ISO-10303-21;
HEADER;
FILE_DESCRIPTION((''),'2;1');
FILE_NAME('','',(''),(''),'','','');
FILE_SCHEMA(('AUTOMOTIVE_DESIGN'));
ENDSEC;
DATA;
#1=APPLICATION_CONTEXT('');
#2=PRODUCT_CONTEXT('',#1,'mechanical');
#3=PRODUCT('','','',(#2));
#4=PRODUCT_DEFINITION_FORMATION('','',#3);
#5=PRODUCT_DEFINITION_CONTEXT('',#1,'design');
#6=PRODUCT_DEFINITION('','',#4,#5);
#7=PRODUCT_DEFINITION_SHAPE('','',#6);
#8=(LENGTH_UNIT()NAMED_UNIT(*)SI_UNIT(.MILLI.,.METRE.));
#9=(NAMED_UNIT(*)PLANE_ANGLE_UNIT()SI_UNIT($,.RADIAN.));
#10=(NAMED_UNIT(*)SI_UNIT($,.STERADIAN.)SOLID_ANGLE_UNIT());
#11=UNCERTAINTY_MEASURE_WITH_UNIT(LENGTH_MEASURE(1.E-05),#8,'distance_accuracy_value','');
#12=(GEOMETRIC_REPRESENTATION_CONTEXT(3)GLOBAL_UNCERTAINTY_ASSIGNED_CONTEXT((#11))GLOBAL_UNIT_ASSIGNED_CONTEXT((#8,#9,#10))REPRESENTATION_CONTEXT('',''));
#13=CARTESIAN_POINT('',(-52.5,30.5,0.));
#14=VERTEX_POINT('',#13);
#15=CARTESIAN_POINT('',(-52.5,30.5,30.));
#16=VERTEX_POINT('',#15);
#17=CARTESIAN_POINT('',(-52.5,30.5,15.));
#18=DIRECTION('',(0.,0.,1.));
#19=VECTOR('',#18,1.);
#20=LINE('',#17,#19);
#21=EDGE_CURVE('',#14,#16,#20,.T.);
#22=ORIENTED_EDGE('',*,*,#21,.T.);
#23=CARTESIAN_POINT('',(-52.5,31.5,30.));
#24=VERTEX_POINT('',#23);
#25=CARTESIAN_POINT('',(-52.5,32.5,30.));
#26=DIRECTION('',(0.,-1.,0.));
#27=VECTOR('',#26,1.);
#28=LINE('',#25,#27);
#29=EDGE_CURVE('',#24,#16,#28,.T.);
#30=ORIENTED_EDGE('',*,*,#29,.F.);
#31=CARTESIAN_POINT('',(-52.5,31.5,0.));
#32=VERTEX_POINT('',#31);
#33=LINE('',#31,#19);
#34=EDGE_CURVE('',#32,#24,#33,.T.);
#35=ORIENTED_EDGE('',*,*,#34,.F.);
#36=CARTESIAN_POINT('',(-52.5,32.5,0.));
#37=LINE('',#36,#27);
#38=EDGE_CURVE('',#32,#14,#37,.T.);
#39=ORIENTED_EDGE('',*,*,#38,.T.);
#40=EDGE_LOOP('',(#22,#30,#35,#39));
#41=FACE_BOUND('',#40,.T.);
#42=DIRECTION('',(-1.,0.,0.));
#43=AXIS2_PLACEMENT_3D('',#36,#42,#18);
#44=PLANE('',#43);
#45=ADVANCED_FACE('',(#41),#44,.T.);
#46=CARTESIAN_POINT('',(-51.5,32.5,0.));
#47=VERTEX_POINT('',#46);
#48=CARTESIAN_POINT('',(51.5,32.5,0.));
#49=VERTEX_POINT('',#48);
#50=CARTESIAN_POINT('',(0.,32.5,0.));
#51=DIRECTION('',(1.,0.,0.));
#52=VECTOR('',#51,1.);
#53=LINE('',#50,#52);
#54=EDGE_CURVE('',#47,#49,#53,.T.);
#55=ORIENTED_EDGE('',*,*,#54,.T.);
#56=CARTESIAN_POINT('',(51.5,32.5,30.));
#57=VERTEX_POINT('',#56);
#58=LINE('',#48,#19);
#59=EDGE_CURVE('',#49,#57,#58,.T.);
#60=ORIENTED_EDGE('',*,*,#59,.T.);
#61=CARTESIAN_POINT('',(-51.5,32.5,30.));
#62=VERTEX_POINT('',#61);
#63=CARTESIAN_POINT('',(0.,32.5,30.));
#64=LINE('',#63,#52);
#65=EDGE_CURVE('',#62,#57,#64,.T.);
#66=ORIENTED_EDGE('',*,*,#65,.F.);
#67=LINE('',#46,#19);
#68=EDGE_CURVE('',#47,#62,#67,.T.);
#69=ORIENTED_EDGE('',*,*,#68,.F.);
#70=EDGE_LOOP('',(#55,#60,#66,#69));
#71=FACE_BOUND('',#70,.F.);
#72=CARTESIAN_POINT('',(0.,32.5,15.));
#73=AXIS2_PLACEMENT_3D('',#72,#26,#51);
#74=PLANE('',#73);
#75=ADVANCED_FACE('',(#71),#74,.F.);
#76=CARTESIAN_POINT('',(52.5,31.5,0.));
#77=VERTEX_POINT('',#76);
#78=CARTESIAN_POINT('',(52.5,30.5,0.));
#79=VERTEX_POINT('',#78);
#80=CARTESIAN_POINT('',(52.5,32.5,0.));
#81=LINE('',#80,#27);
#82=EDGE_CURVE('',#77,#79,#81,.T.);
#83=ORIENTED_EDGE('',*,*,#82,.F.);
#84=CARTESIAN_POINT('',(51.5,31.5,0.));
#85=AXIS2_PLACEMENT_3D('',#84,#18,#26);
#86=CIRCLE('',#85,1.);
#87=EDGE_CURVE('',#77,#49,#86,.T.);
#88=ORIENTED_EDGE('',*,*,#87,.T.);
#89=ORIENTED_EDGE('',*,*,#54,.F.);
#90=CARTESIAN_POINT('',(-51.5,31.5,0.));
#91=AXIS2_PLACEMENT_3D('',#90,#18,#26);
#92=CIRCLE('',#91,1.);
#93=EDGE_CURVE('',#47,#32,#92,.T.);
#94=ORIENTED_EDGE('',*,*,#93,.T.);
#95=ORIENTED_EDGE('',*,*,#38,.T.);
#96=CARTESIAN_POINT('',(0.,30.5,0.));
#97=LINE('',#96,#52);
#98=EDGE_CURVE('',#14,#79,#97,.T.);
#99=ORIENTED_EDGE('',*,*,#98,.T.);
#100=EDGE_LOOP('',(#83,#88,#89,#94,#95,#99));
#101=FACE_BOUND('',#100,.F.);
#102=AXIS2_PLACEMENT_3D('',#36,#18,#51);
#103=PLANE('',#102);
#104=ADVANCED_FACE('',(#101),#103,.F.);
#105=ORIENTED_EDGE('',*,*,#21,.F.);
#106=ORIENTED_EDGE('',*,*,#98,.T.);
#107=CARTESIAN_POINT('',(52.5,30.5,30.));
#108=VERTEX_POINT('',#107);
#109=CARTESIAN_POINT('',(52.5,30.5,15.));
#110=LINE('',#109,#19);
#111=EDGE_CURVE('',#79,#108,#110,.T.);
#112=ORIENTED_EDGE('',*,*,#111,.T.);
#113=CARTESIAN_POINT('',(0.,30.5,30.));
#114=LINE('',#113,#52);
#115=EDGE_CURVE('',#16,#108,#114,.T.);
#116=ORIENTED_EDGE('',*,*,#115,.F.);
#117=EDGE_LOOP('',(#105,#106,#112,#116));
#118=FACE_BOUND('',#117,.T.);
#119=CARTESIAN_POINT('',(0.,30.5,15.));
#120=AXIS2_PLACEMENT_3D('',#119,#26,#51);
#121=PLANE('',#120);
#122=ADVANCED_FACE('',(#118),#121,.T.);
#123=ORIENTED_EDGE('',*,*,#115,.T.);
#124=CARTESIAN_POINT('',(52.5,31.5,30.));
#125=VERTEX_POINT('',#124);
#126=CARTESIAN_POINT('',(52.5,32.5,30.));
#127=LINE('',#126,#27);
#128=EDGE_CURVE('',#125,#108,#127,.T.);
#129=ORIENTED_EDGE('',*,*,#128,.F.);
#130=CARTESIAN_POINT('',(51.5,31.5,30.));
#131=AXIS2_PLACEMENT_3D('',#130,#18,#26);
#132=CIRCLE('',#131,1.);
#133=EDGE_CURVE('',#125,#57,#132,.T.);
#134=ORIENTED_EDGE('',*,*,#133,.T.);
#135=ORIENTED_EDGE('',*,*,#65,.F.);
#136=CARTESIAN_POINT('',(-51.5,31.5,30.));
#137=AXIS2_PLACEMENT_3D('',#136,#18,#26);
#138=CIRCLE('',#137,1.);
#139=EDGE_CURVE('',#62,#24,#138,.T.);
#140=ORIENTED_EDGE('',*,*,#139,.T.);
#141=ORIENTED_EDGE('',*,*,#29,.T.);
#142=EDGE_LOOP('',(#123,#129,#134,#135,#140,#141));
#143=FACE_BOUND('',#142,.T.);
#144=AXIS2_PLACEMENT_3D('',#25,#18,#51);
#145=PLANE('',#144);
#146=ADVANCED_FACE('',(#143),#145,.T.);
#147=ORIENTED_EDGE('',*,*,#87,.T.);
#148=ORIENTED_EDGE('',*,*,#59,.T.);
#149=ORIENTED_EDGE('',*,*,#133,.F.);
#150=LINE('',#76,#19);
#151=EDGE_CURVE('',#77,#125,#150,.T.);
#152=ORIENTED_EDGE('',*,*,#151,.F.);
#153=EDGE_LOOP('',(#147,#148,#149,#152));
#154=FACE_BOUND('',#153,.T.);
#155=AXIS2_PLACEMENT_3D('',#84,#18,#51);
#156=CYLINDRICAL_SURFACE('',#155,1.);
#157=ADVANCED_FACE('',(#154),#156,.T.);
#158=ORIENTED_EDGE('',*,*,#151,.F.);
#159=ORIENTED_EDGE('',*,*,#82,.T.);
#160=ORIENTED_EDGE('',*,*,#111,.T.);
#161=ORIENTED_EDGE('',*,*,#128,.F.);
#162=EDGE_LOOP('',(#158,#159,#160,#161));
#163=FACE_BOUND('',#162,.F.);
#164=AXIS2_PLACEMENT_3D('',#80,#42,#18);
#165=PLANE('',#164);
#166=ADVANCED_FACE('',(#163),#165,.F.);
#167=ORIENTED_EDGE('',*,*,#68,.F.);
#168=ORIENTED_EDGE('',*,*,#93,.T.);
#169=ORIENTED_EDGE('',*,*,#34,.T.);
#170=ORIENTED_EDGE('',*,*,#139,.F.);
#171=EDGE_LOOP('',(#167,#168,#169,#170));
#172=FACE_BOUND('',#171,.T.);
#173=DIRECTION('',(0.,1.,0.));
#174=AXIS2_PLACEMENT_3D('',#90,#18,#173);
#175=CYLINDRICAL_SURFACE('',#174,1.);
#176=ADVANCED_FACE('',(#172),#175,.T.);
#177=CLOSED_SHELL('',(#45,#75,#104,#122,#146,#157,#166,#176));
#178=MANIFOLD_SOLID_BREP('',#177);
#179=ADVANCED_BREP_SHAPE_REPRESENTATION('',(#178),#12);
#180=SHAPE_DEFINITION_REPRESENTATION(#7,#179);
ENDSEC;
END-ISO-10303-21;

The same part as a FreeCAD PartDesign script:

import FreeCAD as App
import Part
import Sketcher

V = App.Vector


def edges_at(feature, points):
    """Names of the edges that pass closest to the given points."""
    edges = feature.Shape.Edges
    near = lambda p: min(range(len(edges)), key=lambda i: edges[i].distToShape(Part.Vertex(*p))[0])
    return sorted({f"Edge{near(p) + 1}" for p in points})

doc = App.newDocument("Part")
body = doc.addObject("PartDesign::Body", "Body")

sketch1 = body.newObject("Sketcher::SketchObject", "Sketch")
sketch1.AttachmentSupport = (doc.getObject("XZ_Plane"), [""])
sketch1.MapMode = "FlatFace"
sketch1.addGeometry(Part.LineSegment(V(-52.5, 30, 0), V(-52.5, 0, 0)), False)
sketch1.addGeometry(Part.LineSegment(V(-52.5, 0, 0), V(52.5, 0, 0)), False)
sketch1.addGeometry(Part.LineSegment(V(52.5, 0, 0), V(52.5, 30, 0)), False)
sketch1.addGeometry(Part.LineSegment(V(52.5, 30, 0), V(-52.5, 30, 0)), False)
sketch1.addConstraint(Sketcher.Constraint("Coincident", 0, 2, 1, 1))
sketch1.addConstraint(Sketcher.Constraint("Coincident", 1, 2, 2, 1))
sketch1.addConstraint(Sketcher.Constraint("Coincident", 2, 2, 3, 1))
sketch1.addConstraint(Sketcher.Constraint("Coincident", 3, 2, 0, 1))
sketch1.addConstraint(Sketcher.Constraint("Vertical", 0))
sketch1.addConstraint(Sketcher.Constraint("Horizontal", 1))
sketch1.addConstraint(Sketcher.Constraint("Vertical", 2))
sketch1.addConstraint(Sketcher.Constraint("Horizontal", 3))
sketch1.addConstraint(Sketcher.Constraint("Symmetric", 0, 2, 1, 2, -1, 1))
sketch1.addConstraint(Sketcher.Constraint("DistanceX", 1, 1, 1, 2, 105.0))
sketch1.addConstraint(Sketcher.Constraint("DistanceY", 0, 2, 0, 1, 30.0))
pad1 = body.newObject("PartDesign::Pad", "Pad")
pad1.Profile = sketch1
pad1.Length = 2
doc.recompute()

fillet = body.newObject("PartDesign::Fillet", "Fillet")
fillet.Base = (pad1, edges_at(pad1, [(52.5, 0, 15)]))
fillet.Radius = 1
doc.recompute()

fillet2 = body.newObject("PartDesign::Fillet", "Fillet001")
fillet2.Base = (fillet, edges_at(fillet, [(-52.5, 0, 15)]))
fillet2.Radius = 1
body2 = doc.addObject("PartDesign::Body", "Body001")
doc.recompute()

body.Placement = App.Placement(V(0, 32.5, 0), App.Rotation(V(0, 0, 1), 0))
boolean = body2.newObject("PartDesign::Boolean", "Boolean")
boolean.Type = "Fuse"
boolean.addObjects([body])

doc.recompute()
